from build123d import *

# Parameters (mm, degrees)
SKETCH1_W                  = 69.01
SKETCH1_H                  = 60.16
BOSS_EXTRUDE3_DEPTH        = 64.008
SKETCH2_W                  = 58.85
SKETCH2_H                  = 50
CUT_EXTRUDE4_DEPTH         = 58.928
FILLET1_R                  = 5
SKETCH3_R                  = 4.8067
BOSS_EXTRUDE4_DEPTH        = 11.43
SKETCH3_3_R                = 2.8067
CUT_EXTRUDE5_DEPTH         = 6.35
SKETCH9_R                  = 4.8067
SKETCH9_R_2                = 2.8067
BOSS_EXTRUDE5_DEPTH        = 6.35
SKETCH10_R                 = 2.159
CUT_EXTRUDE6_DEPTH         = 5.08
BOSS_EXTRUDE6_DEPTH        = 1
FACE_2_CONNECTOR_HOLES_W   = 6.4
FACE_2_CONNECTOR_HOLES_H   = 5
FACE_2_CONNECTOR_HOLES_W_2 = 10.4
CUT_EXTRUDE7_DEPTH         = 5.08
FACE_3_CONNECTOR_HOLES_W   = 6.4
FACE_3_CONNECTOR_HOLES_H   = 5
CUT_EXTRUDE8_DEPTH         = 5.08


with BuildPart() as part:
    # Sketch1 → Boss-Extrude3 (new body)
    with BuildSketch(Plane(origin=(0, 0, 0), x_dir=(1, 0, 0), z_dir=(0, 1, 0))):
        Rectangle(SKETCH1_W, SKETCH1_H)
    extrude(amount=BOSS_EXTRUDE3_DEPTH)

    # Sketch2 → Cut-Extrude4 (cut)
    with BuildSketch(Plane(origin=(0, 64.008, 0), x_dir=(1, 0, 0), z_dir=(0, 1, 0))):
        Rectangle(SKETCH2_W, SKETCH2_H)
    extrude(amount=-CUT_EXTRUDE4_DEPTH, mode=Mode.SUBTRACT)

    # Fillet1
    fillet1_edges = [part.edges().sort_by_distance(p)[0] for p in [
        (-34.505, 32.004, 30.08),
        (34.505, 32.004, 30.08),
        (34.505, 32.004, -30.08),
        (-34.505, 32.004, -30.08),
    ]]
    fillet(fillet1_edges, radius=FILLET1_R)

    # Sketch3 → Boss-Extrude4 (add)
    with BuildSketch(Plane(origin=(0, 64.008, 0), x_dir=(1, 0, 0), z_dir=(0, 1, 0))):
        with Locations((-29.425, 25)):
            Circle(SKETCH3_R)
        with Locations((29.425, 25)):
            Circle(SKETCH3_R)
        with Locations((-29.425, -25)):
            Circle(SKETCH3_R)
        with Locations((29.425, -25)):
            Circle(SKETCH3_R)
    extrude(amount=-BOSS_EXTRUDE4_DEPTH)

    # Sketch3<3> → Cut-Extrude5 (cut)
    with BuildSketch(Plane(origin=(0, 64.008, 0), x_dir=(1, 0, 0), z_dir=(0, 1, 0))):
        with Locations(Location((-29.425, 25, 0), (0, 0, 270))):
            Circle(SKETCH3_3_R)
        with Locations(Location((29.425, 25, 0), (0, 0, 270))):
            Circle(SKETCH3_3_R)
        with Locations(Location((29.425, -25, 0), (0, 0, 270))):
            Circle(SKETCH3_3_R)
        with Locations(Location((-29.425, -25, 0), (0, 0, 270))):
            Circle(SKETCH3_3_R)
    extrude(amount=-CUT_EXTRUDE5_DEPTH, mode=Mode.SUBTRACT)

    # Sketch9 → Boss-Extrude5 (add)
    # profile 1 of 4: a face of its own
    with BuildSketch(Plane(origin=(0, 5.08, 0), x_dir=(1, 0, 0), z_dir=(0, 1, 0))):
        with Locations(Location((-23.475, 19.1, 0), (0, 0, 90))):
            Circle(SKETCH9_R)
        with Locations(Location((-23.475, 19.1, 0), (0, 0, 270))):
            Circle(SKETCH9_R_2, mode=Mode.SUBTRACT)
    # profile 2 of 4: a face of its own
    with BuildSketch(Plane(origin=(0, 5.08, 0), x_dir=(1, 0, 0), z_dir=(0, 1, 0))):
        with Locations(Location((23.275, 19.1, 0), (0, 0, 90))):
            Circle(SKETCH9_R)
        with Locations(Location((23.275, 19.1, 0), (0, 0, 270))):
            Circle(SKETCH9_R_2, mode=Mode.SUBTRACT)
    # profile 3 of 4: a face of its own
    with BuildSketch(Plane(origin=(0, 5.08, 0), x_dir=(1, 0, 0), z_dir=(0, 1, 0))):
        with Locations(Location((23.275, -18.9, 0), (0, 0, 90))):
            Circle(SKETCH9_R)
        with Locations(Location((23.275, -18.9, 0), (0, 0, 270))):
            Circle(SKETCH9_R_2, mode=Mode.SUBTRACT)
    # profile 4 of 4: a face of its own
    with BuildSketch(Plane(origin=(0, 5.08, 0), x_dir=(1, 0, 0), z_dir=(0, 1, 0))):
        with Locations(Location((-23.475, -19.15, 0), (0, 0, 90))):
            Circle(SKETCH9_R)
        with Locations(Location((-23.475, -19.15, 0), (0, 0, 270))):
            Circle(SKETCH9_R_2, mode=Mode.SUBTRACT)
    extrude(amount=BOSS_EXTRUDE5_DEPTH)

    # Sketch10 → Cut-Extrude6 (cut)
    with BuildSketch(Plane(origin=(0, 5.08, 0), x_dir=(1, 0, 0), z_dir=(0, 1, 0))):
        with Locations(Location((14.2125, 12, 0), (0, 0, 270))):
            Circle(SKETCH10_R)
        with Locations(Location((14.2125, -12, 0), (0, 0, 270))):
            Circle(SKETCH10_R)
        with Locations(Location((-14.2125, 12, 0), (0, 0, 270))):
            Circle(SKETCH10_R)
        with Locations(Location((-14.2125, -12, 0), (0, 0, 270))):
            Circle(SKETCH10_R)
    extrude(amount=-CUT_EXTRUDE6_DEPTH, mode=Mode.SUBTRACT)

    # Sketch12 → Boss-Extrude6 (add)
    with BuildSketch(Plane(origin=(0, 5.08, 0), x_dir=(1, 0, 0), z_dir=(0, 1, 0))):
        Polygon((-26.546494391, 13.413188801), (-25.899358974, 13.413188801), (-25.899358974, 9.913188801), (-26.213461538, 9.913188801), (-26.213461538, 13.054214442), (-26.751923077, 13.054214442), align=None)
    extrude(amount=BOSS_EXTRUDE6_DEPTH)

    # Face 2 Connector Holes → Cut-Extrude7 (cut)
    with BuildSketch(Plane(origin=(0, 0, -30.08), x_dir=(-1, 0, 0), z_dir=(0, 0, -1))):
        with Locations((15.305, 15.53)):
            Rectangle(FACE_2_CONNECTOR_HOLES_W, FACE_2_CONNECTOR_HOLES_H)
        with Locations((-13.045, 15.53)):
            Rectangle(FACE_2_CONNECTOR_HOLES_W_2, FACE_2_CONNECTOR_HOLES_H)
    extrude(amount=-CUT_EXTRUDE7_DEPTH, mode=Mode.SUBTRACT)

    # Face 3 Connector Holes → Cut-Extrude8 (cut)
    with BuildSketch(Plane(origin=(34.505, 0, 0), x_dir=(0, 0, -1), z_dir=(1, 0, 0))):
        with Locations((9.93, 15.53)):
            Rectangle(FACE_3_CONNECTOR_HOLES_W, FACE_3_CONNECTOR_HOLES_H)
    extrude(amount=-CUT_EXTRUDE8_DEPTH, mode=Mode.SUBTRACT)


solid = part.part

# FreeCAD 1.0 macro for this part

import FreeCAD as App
import Part
import Sketcher
from FreeCAD import Vector
Q = App.Units.Quantity


def edges_at(feature, points):
    """Names of the edges that pass closest to the given points."""
    edges = feature.Shape.Edges
    near = lambda p: min(range(len(edges)), key=lambda i: edges[i].distToShape(Part.Vertex(*p))[0])
    return sorted({f"Edge{near(p) + 1}" for p in points})

doc = App.newDocument("Part")
body = doc.addObject("PartDesign::Body", "Body")

sketch1 = doc.addObject("Sketcher::SketchObject", "Sketch")
body.addObject(sketch1)
sketch1.AttachmentSupport = (doc.XZ_Plane, [""])
sketch1.MapMode = "FlatFace"
sketch1.addGeometry([
    Part.LineSegment(Vector(-35, -30, 0), Vector(-35, 30, 0)),
    Part.LineSegment(Vector(-35, 30, 0), Vector(35, 30, 0)),
    Part.LineSegment(Vector(35, 30, 0), Vector(35, -30, 0)),
    Part.LineSegment(Vector(35, -30, 0), Vector(-35, -30, 0)),
], False)
sketch1.addConstraint([
    Sketcher.Constraint("Coincident", 0, 2, 1, 1),
    Sketcher.Constraint("Coincident", 1, 2, 2, 1),
    Sketcher.Constraint("Coincident", 2, 2, 3, 1),
    Sketcher.Constraint("Coincident", 3, 2, 0, 1),
    Sketcher.Constraint("Vertical", 0),
    Sketcher.Constraint("Horizontal", 1),
    Sketcher.Constraint("Vertical", 2),
    Sketcher.Constraint("Horizontal", 3),
    Sketcher.Constraint("Symmetric", 0, 2, 2, 2, -1, 1),
    Sketcher.Constraint("DistanceX", 1, 1, 1, 2, 69.01),
    Sketcher.Constraint("DistanceY", 0, 1, 0, 2, 60.16),
])
pad1 = doc.addObject("PartDesign::Pad", "Pad")
body.addObject(pad1)
pad1.Profile = sketch1
pad1.Length = Q("2.52 in")
pad1.Reversed = True

sketch2 = doc.addObject("Sketcher::SketchObject", "Sketch001")
body.addObject(sketch2)
sketch2.AttachmentSupport = (doc.XZ_Plane, [""])
sketch2.MapMode = "FlatFace"
sketch2.AttachmentOffset = App.Placement(Vector(0, 0, -2.52 * 25.4), App.Rotation())
sketch2.addGeometry([
    Part.LineSegment(Vector(-29, -25, 0), Vector(-29, 25, 0)),
    Part.LineSegment(Vector(-29, 25, 0), Vector(29, 25, 0)),
    Part.LineSegment(Vector(29, 25, 0), Vector(29, -25, 0)),
    Part.LineSegment(Vector(29, -25, 0), Vector(-29, -25, 0)),
], False)
sketch2.addConstraint([
    Sketcher.Constraint("Coincident", 0, 2, 1, 1),
    Sketcher.Constraint("Coincident", 1, 2, 2, 1),
    Sketcher.Constraint("Coincident", 2, 2, 3, 1),
    Sketcher.Constraint("Coincident", 3, 2, 0, 1),
    Sketcher.Constraint("Vertical", 0),
    Sketcher.Constraint("Horizontal", 1),
    Sketcher.Constraint("Vertical", 2),
    Sketcher.Constraint("Horizontal", 3),
    Sketcher.Constraint("Symmetric", 0, 2, 2, 2, -1, 1),
    Sketcher.Constraint("DistanceX", 1, 1, 1, 2, 58.85),
    Sketcher.Constraint("DistanceY", 0, 1, 0, 2, 50.0),
])
pocket1 = doc.addObject("PartDesign::Pocket", "Pocket")
body.addObject(pocket1)
pocket1.Profile = sketch2
pocket1.Length = Q("2.32 in")
pocket1.Reversed = True
doc.recompute()

fillet = doc.addObject("PartDesign::Fillet", "Fillet")
body.addObject(fillet)
fillet.Base = (pocket1, edges_at(pocket1, [
    (-34.505, 32.004, 30.08),
    (34.505, 32.004, 30.08),
    (34.505, 32.004, -30.08),
    (-34.505, 32.004, -30.08),
]))
fillet.Radius = 5

sketch3 = doc.addObject("Sketcher::SketchObject", "Sketch002")
body.addObject(sketch3)
sketch3.AttachmentSupport = (doc.XZ_Plane, [""])
sketch3.MapMode = "FlatFace"
sketch3.AttachmentOffset = App.Placement(Vector(0, 0, -2.52 * 25.4), App.Rotation())
sketch3.addGeometry([
    Part.Circle(Vector(-29.4, -25, 0), Vector(0, 0, 1), 4.8),
    Part.Circle(Vector(29.4, -25, 0), Vector(0, 0, 1), 4.8),
    Part.Circle(Vector(-29.4, 25, 0), Vector(0, 0, 1), 4.8),
    Part.Circle(Vector(29.4, 25, 0), Vector(0, 0, 1), 4.8),
], False)
sketch3.addConstraint([
    Sketcher.Constraint("Equal", 0, 1),
    Sketcher.Constraint("Equal", 1, 2),
    Sketcher.Constraint("Equal", 2, 3),
    Sketcher.Constraint("Symmetric", 1, 3, 2, 3, -1, 1),
    Sketcher.Constraint("Symmetric", 0, 3, 3, 3, -1, 1),
    Sketcher.Constraint("Symmetric", 0, 3, 1, 3, -2),
    Sketcher.Constraint("Diameter", 0, 9.6134),
    Sketcher.Constraint("DistanceX", 0, 3, -1, 1, 29.425),
    Sketcher.Constraint("DistanceY", 0, 3, -1, 1, 25.0),
])
pad2 = doc.addObject("PartDesign::Pad", "Pad001")
body.addObject(pad2)
pad2.Profile = sketch3
pad2.Length = Q("0.45 in")

sketch4 = doc.addObject("Sketcher::SketchObject", "Sketch003")
body.addObject(sketch4)
sketch4.AttachmentSupport = (doc.XZ_Plane, [""])
sketch4.MapMode = "FlatFace"
sketch4.AttachmentOffset = App.Placement(Vector(0, 0, -2.52 * 25.4), App.Rotation())
sketch4.addGeometry([
    Part.Circle(Vector(-29.4, -25, 0), Vector(0, 0, 1), 2.8),
    Part.Circle(Vector(29.4, -25, 0), Vector(0, 0, 1), 2.8),
    Part.Circle(Vector(29.4, 25, 0), Vector(0, 0, 1), 2.8),
    Part.Circle(Vector(-29.4, 25, 0), Vector(0, 0, 1), 2.8),
], False)
sketch4.addConstraint([
    Sketcher.Constraint("Equal", 0, 1),
    Sketcher.Constraint("Equal", 1, 2),
    Sketcher.Constraint("Equal", 2, 3),
    Sketcher.Constraint("Symmetric", 0, 3, 2, 3, -1, 1),
    Sketcher.Constraint("Symmetric", 1, 3, 3, 3, -1, 1),
    Sketcher.Constraint("Symmetric", 0, 3, 1, 3, -2),
    Sketcher.Constraint("Diameter", 0, Q("0.221 in")),
    Sketcher.Constraint("DistanceX", 0, 3, -1, 1, 29.425),
    Sketcher.Constraint("DistanceY", 0, 3, -1, 1, 25.0),
])
pocket2 = doc.addObject("PartDesign::Pocket", "Pocket001")
body.addObject(pocket2)
pocket2.Profile = sketch4
pocket2.Length = Q("0.25 in")
pocket2.Reversed = True

sketch5 = doc.addObject("Sketcher::SketchObject", "Sketch004")
body.addObject(sketch5)
sketch5.AttachmentSupport = (doc.XZ_Plane, [""])
sketch5.MapMode = "FlatFace"
sketch5.AttachmentOffset = App.Placement(Vector(0, 0, -0.2 * 25.4), App.Rotation())
sketch5.addGeometry([
    Part.Circle(Vector(-23.5, -19.1, 0), Vector(0, 0, 1), 4.8),
    Part.Circle(Vector(-23.5, -19.1, 0), Vector(0, 0, 1), 2.8),
    Part.Circle(Vector(23.3, -19.1, 0), Vector(0, 0, 1), 4.8),
    Part.Circle(Vector(23.3, -19.1, 0), Vector(0, 0, 1), 2.8),
    Part.Circle(Vector(23.3, 18.9, 0), Vector(0, 0, 1), 4.8),
    Part.Circle(Vector(23.3, 18.9, 0), Vector(0, 0, 1), 2.8),
    Part.Circle(Vector(-23.5, 19.1, 0), Vector(0, 0, 1), 4.8),
    Part.Circle(Vector(-23.5, 19.1, 0), Vector(0, 0, 1), 2.8),
], False)
sketch5.addConstraint([
    Sketcher.Constraint("Coincident", 1, 3, 0, 3),
    Sketcher.Constraint("Coincident", 3, 3, 2, 3),
    Sketcher.Constraint("Coincident", 5, 3, 4, 3),
    Sketcher.Constraint("Coincident", 7, 3, 6, 3),
    Sketcher.Constraint("Equal", 0, 2),
    Sketcher.Constraint("Equal", 1, 3),
    Sketcher.Constraint("Equal", 2, 4),
    Sketcher.Constraint("Equal", 3, 5),
    Sketcher.Constraint("Equal", 4, 6),
    Sketcher.Constraint("Equal", 5, 7),
    Sketcher.Constraint("Horizontal", 1, 3, 2, 3),
    Sketcher.Constraint("Vertical", 3, 3, 4, 3),
    Sketcher.Constraint("Vertical", 1, 3, 6, 3),
    Sketcher.Constraint("Diameter", 1, Q("0.221 in")),
    Sketcher.Constraint("Diameter", 0, 9.6134),
    Sketcher.Constraint("DistanceX", 0, 3, -1, 1, 23.475),
    Sketcher.Constraint("DistanceY", 0, 3, -1, 1, 19.1),
    Sketcher.Constraint("DistanceX", -1, 1, 2, 3, 23.275),
    Sketcher.Constraint("DistanceY", -1, 1, 4, 3, 18.9),
    Sketcher.Constraint("DistanceY", -1, 1, 6, 3, 19.15),
])
pad3 = doc.addObject("PartDesign::Pad", "Pad002")
body.addObject(pad3)
pad3.Profile = sketch5
pad3.Length = Q("0.25 in")
pad3.Reversed = True

sketch6 = doc.addObject("Sketcher::SketchObject", "Sketch005")
body.addObject(sketch6)
sketch6.AttachmentSupport = (doc.XZ_Plane, [""])
sketch6.MapMode = "FlatFace"
sketch6.AttachmentOffset = App.Placement(Vector(0, 0, -0.2 * 25.4), App.Rotation())
sketch6.addGeometry([
    Part.Circle(Vector(14.2, -12, 0), Vector(0, 0, 1), 2.2),
    Part.Circle(Vector(14.2, 12, 0), Vector(0, 0, 1), 2.2),
    Part.Circle(Vector(-14.2, -12, 0), Vector(0, 0, 1), 2.2),
    Part.Circle(Vector(-14.2, 12, 0), Vector(0, 0, 1), 2.2),
], False)
sketch6.addConstraint([
    Sketcher.Constraint("Equal", 0, 1),
    Sketcher.Constraint("Equal", 1, 2),
    Sketcher.Constraint("Equal", 2, 3),
    Sketcher.Constraint("Symmetric", 1, 3, 2, 3, -1, 1),
    Sketcher.Constraint("Symmetric", 0, 3, 3, 3, -1, 1),
    Sketcher.Constraint("Symmetric", 0, 3, 2, 3, -2),
    Sketcher.Constraint("Diameter", 0, Q("0.17 in")),
    Sketcher.Constraint("DistanceX", -1, 1, 0, 3, 14.2125),
    Sketcher.Constraint("DistanceY", 0, 3, -1, 1, 12.0),
])
pocket3 = doc.addObject("PartDesign::Pocket", "Pocket002")
body.addObject(pocket3)
pocket3.Profile = sketch6
pocket3.Length = Q("0.2 in")
pocket3.Reversed = True

sketch7 = doc.addObject("Sketcher::SketchObject", "Sketch006")
body.addObject(sketch7)
sketch7.AttachmentSupport = (doc.XZ_Plane, [""])
sketch7.MapMode = "FlatFace"
sketch7.AttachmentOffset = App.Placement(Vector(0, 0, -0.2 * 25.4), App.Rotation())
sketch7.addGeometry([
    Part.LineSegment(Vector(-25.9, -13.41, 0), Vector(-26.55, -13.41, 0)),
    Part.LineSegment(Vector(-26.55, -13.41, 0), Vector(-26.75, -13.05, 0)),
    Part.LineSegment(Vector(-26.75, -13.05, 0), Vector(-26.21, -13.05, 0)),
    Part.LineSegment(Vector(-26.21, -13.05, 0), Vector(-26.21, -9.91, 0)),
    Part.LineSegment(Vector(-26.21, -9.91, 0), Vector(-25.9, -9.91, 0)),
    Part.LineSegment(Vector(-25.9, -9.91, 0), Vector(-25.9, -13.41, 0)),
], False)
sketch7.addConstraint([
    Sketcher.Constraint("Coincident", 0, 2, 1, 1),
    Sketcher.Constraint("Coincident", 1, 2, 2, 1),
    Sketcher.Constraint("Coincident", 2, 2, 3, 1),
    Sketcher.Constraint("Coincident", 3, 2, 4, 1),
    Sketcher.Constraint("Coincident", 4, 2, 5, 1),
    Sketcher.Constraint("Coincident", 5, 2, 0, 1),
    Sketcher.Constraint("Horizontal", 0),
    Sketcher.Constraint("Horizontal", 2),
    Sketcher.Constraint("Vertical", 3),
    Sketcher.Constraint("Horizontal", 4),
    Sketcher.Constraint("Vertical", 5),
    Sketcher.Constraint("DistanceY", 5, 2, 5, 1, 3.5),
    Sketcher.Constraint("Distance", 1, 0.413598),
    Sketcher.Constraint("DistanceX", 2, 1, 2, 2, 0.538462),
    Sketcher.Constraint("DistanceX", 0, 2, 0, 1, 0.647135),
    Sketcher.Constraint("DistanceX", 4, 1, 4, 2, 0.314103),
    Sketcher.Constraint("DistanceY", 0, 2, -1, 1, 13.413189),
    Sketcher.Constraint("DistanceX", 2, 2, -1, 1, 26.213462),
])
pad4 = doc.addObject("PartDesign::Pad", "Pad003")
body.addObject(pad4)
pad4.Profile = sketch7
pad4.Length = 1
pad4.Reversed = True

sketch8 = doc.addObject("Sketcher::SketchObject", "Sketch007")
body.addObject(sketch8)
sketch8.AttachmentSupport = (doc.XY_Plane, [""])
sketch8.MapMode = "FlatFace"
sketch8.AttachmentOffset = App.Placement(Vector(0, 0, -30.08), App.Rotation())
sketch8.addGeometry([
    Part.LineSegment(Vector(-12, 18, 0), Vector(-12, 13, 0)),
    Part.LineSegment(Vector(-12, 13, 0), Vector(-19, 13, 0)),
    Part.LineSegment(Vector(-19, 13, 0), Vector(-19, 18, 0)),
    Part.LineSegment(Vector(-19, 18, 0), Vector(-12, 18, 0)),
    Part.LineSegment(Vector(18, 18, 0), Vector(18, 13, 0)),
    Part.LineSegment(Vector(18, 13, 0), Vector(8, 13, 0)),
    Part.LineSegment(Vector(8, 13, 0), Vector(8, 18, 0)),
    Part.LineSegment(Vector(8, 18, 0), Vector(18, 18, 0)),
], False)
sketch8.addConstraint([
    Sketcher.Constraint("Coincident", 0, 2, 1, 1),
    Sketcher.Constraint("Coincident", 1, 2, 2, 1),
    Sketcher.Constraint("Coincident", 2, 2, 3, 1),
    Sketcher.Constraint("Coincident", 3, 2, 0, 1),
    Sketcher.Constraint("Coincident", 4, 2, 5, 1),
    Sketcher.Constraint("Coincident", 5, 2, 6, 1),
    Sketcher.Constraint("Coincident", 6, 2, 7, 1),
    Sketcher.Constraint("Coincident", 7, 2, 4, 1),
    Sketcher.Constraint("Vertical", 0),
    Sketcher.Constraint("Horizontal", 1),
    Sketcher.Constraint("Vertical", 2),
    Sketcher.Constraint("Horizontal", 3),
    Sketcher.Constraint("Vertical", 4),
    Sketcher.Constraint("Horizontal", 5),
    Sketcher.Constraint("Vertical", 6),
    Sketcher.Constraint("Horizontal", 7),
    Sketcher.Constraint("Horizontal", 1, 2, 4, 2),
    Sketcher.Constraint("Horizontal", 3, 2, 6, 2),
    Sketcher.Constraint("DistanceX", 1, 2, 1, 1, 6.4),
    Sketcher.Constraint("DistanceX", 5, 2, 5, 1, 10.4),
    Sketcher.Constraint("DistanceY", 0, 2, 0, 1, 5.0),
    Sketcher.Constraint("DistanceX", 0, 2, -1, 1, 12.105),
    Sketcher.Constraint("DistanceY", -1, 1, 0, 2, 13.03),
    Sketcher.Constraint("DistanceX", -1, 1, 4, 2, 18.245),
])
pocket4 = doc.addObject("PartDesign::Pocket", "Pocket003")
body.addObject(pocket4)
pocket4.Profile = sketch8
pocket4.Length = Q("0.2 in")
pocket4.Reversed = True

sketch9 = doc.addObject("Sketcher::SketchObject", "Sketch008")
body.addObject(sketch9)
sketch9.AttachmentSupport = (doc.YZ_Plane, [""])
sketch9.MapMode = "FlatFace"
sketch9.AttachmentOffset = App.Placement(Vector(0, 0, 34.505), App.Rotation())
sketch9.addGeometry([
    Part.LineSegment(Vector(18, -7, 0), Vector(13, -7, 0)),
    Part.LineSegment(Vector(13, -7, 0), Vector(13, -13, 0)),
    Part.LineSegment(Vector(13, -13, 0), Vector(18, -13, 0)),
    Part.LineSegment(Vector(18, -13, 0), Vector(18, -7, 0)),
], False)
sketch9.addConstraint([
    Sketcher.Constraint("Coincident", 0, 2, 1, 1),
    Sketcher.Constraint("Coincident", 1, 2, 2, 1),
    Sketcher.Constraint("Coincident", 2, 2, 3, 1),
    Sketcher.Constraint("Coincident", 3, 2, 0, 1),
    Sketcher.Constraint("Horizontal", 0),
    Sketcher.Constraint("Vertical", 1),
    Sketcher.Constraint("Horizontal", 2),
    Sketcher.Constraint("Vertical", 3),
    Sketcher.Constraint("DistanceX", 0, 2, 0, 1, 5.0),
    Sketcher.Constraint("DistanceY", 1, 2, 1, 1, 6.4),
    Sketcher.Constraint("DistanceX", -1, 1, 0, 2, 13.03),
    Sketcher.Constraint("DistanceY", 0, 2, -1, 1, 6.73),
])
pocket5 = doc.addObject("PartDesign::Pocket", "Pocket004")
body.addObject(pocket5)
pocket5.Profile = sketch9
pocket5.Length = Q("0.2 in")

doc.recompute()
